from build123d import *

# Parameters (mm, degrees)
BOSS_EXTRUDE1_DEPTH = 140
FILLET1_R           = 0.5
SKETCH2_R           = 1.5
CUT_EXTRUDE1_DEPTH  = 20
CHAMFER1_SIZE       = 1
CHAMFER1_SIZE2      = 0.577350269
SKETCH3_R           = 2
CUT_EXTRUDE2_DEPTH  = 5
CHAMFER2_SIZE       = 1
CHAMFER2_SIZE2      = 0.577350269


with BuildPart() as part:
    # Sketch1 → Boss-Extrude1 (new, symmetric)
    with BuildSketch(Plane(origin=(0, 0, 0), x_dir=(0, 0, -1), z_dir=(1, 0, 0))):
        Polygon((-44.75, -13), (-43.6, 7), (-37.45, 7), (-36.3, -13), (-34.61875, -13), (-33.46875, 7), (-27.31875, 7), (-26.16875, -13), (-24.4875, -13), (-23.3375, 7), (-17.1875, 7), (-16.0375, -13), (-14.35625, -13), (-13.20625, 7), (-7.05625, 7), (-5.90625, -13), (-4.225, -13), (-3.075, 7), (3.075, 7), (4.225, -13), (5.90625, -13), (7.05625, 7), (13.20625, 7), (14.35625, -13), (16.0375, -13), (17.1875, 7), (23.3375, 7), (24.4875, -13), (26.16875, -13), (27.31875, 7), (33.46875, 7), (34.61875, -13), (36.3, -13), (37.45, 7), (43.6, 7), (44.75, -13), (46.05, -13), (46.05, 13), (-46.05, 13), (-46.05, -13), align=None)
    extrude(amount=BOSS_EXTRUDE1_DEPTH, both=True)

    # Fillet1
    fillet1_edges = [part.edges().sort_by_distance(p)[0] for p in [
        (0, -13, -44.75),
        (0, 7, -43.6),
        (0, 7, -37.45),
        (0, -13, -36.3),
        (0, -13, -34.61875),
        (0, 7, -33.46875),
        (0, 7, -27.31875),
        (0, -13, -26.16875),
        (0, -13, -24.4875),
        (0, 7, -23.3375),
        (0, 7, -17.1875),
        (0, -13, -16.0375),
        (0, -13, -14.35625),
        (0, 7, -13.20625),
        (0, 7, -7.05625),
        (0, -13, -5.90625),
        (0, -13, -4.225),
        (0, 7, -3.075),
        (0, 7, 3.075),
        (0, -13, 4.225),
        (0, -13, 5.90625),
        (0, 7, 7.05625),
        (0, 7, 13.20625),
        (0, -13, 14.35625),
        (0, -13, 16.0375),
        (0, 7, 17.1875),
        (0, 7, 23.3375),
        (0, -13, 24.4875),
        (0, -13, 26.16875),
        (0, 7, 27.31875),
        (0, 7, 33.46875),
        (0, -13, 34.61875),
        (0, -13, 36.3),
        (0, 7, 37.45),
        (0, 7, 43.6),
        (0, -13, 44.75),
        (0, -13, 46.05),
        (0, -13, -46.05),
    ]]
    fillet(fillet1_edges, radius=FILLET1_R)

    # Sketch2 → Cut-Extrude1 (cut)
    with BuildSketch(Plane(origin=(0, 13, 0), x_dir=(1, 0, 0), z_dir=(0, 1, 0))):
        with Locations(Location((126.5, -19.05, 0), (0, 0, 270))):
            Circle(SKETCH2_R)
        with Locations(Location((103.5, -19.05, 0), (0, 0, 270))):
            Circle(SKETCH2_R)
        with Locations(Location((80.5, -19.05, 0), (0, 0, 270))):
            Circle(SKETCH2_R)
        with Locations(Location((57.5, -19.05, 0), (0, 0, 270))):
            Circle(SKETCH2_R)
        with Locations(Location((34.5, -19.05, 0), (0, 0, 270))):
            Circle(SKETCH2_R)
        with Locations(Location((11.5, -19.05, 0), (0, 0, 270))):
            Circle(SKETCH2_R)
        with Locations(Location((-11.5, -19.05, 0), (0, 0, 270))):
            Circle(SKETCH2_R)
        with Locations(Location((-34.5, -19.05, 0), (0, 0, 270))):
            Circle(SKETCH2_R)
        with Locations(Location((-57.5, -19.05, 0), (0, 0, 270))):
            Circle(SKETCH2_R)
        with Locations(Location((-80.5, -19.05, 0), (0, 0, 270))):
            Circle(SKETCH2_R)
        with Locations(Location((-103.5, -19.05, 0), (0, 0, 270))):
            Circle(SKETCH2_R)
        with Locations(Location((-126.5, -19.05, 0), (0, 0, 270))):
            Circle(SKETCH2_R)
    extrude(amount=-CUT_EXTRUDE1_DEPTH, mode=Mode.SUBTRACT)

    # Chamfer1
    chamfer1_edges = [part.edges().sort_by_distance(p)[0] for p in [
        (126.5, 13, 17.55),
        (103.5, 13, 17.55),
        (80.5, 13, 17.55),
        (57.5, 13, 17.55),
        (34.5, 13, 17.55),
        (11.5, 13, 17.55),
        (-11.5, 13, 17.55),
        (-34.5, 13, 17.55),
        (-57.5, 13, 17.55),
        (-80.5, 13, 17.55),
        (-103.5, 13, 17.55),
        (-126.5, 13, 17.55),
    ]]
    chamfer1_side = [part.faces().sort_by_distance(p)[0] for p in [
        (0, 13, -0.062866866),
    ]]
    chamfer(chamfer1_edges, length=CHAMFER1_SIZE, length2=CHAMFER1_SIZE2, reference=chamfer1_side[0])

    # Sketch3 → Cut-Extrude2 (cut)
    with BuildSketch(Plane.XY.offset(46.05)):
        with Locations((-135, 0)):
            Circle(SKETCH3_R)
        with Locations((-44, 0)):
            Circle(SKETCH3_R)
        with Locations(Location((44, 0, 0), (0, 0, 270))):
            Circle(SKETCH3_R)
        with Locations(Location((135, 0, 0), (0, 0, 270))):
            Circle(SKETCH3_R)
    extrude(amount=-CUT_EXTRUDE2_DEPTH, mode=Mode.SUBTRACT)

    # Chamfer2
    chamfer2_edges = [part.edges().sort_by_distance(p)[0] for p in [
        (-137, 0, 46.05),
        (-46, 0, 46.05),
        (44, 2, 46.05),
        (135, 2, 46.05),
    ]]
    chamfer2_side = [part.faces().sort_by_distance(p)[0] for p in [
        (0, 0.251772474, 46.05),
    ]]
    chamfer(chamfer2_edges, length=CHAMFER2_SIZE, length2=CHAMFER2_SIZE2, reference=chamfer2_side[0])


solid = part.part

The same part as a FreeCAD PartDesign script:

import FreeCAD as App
import Part
import Sketcher


def edges_at(feature, points):
    """Names of the edges that pass closest to the given points."""
    edges = feature.Shape.Edges
    near = lambda p: min(range(len(edges)), key=lambda i: edges[i].distToShape(Part.Vertex(*p))[0])
    return sorted({f"Edge{near(p) + 1}" for p in points})


def add_polygon(sketch, points):
    """Adds a closed chain of lines whose ends are joined by coincident constraints."""
    first, n = sketch.GeometryCount, len(points)
    for a, b in zip(points, points[1:] + points[:1]):
        sketch.addGeometry(Part.LineSegment(App.Vector(*a, 0), App.Vector(*b, 0)), False)
    for i in range(n):
        sketch.addConstraint(Sketcher.Constraint("Coincident", first + i, 2, first + (i + 1) % n, 1))

doc = App.newDocument("Part")
body = doc.addObject("PartDesign::Body", "Body")

sketch1 = body.newObject("Sketcher::SketchObject", "Sketch")
sketch1.AttachmentSupport = (doc.getObject("YZ_Plane"), [""])
sketch1.MapMode = "FlatFace"
add_polygon(sketch1, [(-13, 44.75), (7, 43.6), (7, 37.45), (-13, 36.3), (-13, 34.61875), (7, 33.46875), (7, 27.31875), (-13, 26.16875), (-13, 24.4875), (7, 23.3375), (7, 17.1875), (-13, 16.0375), (-13, 14.35625), (7, 13.20625), (7, 7.05625), (-13, 5.90625), (-13, 4.225), (7, 3.075), (7, -3.075), (-13, -4.225), (-13, -5.90625), (7, -7.05625), (7, -13.20625), (-13, -14.35625), (-13, -16.0375), (7, -17.1875), (7, -23.3375), (-13, -24.4875), (-13, -26.16875), (7, -27.31875), (7, -33.46875), (-13, -34.61875), (-13, -36.3), (7, -37.45), (7, -43.6), (-13, -44.75), (-13, -46.05), (13, -46.05), (13, 46.05), (-13, 46.05)])
sketch1.addConstraint(Sketcher.Constraint("Vertical", 1))
sketch1.addConstraint(Sketcher.Constraint("Vertical", 3))
sketch1.addConstraint(Sketcher.Constraint("Vertical", 5))
sketch1.addConstraint(Sketcher.Constraint("Vertical", 7))
sketch1.addConstraint(Sketcher.Constraint("Vertical", 9))
sketch1.addConstraint(Sketcher.Constraint("Vertical", 11))
sketch1.addConstraint(Sketcher.Constraint("Vertical", 13))
sketch1.addConstraint(Sketcher.Constraint("Vertical", 15))
sketch1.addConstraint(Sketcher.Constraint("Vertical", 17))
sketch1.addConstraint(Sketcher.Constraint("Vertical", 19))
sketch1.addConstraint(Sketcher.Constraint("Vertical", 21))
sketch1.addConstraint(Sketcher.Constraint("Vertical", 23))
sketch1.addConstraint(Sketcher.Constraint("Vertical", 25))
sketch1.addConstraint(Sketcher.Constraint("Vertical", 27))
sketch1.addConstraint(Sketcher.Constraint("Vertical", 29))
sketch1.addConstraint(Sketcher.Constraint("Vertical", 31))
sketch1.addConstraint(Sketcher.Constraint("Vertical", 33))
sketch1.addConstraint(Sketcher.Constraint("Vertical", 35))
sketch1.addConstraint(Sketcher.Constraint("Horizontal", 36))
sketch1.addConstraint(Sketcher.Constraint("Vertical", 37))
sketch1.addConstraint(Sketcher.Constraint("Horizontal", 38))
sketch1.addConstraint(Sketcher.Constraint("Vertical", 39))
sketch1.addConstraint(Sketcher.Constraint("Symmetric", 35, 2, 37, 2, -1, 1))
sketch1.addConstraint(Sketcher.Constraint("Symmetric", 15, 2, 18, 2, -1))
sketch1.addConstraint(Sketcher.Constraint("Symmetric", 13, 2, 20, 2, -1))
sketch1.addConstraint(Sketcher.Constraint("Symmetric", 11, 2, 22, 2, -1))
sketch1.addConstraint(Sketcher.Constraint("Symmetric", 9, 2, 24, 2, -1))
sketch1.addConstraint(Sketcher.Constraint("Symmetric", 7, 2, 26, 2, -1))
sketch1.addConstraint(Sketcher.Constraint("Symmetric", 5, 2, 28, 2, -1))
sketch1.addConstraint(Sketcher.Constraint("Symmetric", 3, 2, 30, 2, -1))
sketch1.addConstraint(Sketcher.Constraint("Symmetric", 1, 2, 32, 2, -1))
sketch1.addConstraint(Sketcher.Constraint("Symmetric", 34, 2, 39, 2, -1))
sketch1.addConstraint(Sketcher.Constraint("Parallel", 0, 4))
sketch1.addConstraint(Sketcher.Constraint("Parallel", 2, 6))
sketch1.addConstraint(Sketcher.Constraint("Parallel", 4, 8))
sketch1.addConstraint(Sketcher.Constraint("Parallel", 6, 10))
sketch1.addConstraint(Sketcher.Constraint("Parallel", 8, 12))
sketch1.addConstraint(Sketcher.Constraint("Parallel", 10, 14))
sketch1.addConstraint(Sketcher.Constraint("Parallel", 12, 16))
sketch1.addConstraint(Sketcher.Constraint("Parallel", 14, 18))
sketch1.addConstraint(Sketcher.Constraint("Parallel", 16, 20))
sketch1.addConstraint(Sketcher.Constraint("Parallel", 18, 22))
sketch1.addConstraint(Sketcher.Constraint("Parallel", 20, 24))
sketch1.addConstraint(Sketcher.Constraint("Parallel", 22, 26))
sketch1.addConstraint(Sketcher.Constraint("Parallel", 24, 28))
sketch1.addConstraint(Sketcher.Constraint("Parallel", 26, 30))
sketch1.addConstraint(Sketcher.Constraint("Parallel", 28, 32))
sketch1.addConstraint(Sketcher.Constraint("Parallel", 30, 34))
sketch1.addConstraint(Sketcher.Constraint("Vertical", 1, 2, 4, 2))
sketch1.addConstraint(Sketcher.Constraint("Vertical", 3, 2, 6, 2))
sketch1.addConstraint(Sketcher.Constraint("Vertical", 5, 2, 8, 2))
sketch1.addConstraint(Sketcher.Constraint("Vertical", 7, 2, 10, 2))
sketch1.addConstraint(Sketcher.Constraint("Vertical", 9, 2, 12, 2))
sketch1.addConstraint(Sketcher.Constraint("Vertical", 11, 2, 14, 2))
sketch1.addConstraint(Sketcher.Constraint("Vertical", 13, 2, 16, 2))
sketch1.addConstraint(Sketcher.Constraint("Vertical", 31, 2, 34, 2))
sketch1.addConstraint(Sketcher.Constraint("Equal", 1, 5))
sketch1.addConstraint(Sketcher.Constraint("Equal", 3, 7))
sketch1.addConstraint(Sketcher.Constraint("Equal", 5, 9))
sketch1.addConstraint(Sketcher.Constraint("Equal", 7, 11))
sketch1.addConstraint(Sketcher.Constraint("Equal", 9, 13))
sketch1.addConstraint(Sketcher.Constraint("Equal", 11, 15))
sketch1.addConstraint(Sketcher.Constraint("Equal", 13, 17))
sketch1.addConstraint(Sketcher.Constraint("Equal", 15, 19))
sketch1.addConstraint(Sketcher.Constraint("DistanceX", 36, 1, 36, 2, 26.0))
sketch1.addConstraint(Sketcher.Constraint("DistanceY", 35, 2, 35, 1, 1.3))
sketch1.addConstraint(Sketcher.Constraint("DistanceY", 37, 1, 37, 2, 92.1))
sketch1.addConstraint(Sketcher.Constraint("DistanceX", -1, 1, 0, 2, 7.0))
sketch1.addConstraint(Sketcher.Constraint("DistanceY", 1, 2, 1, 1, 6.15))
sketch1.addConstraint(Sketcher.Constraint("DistanceY", -1, 1, 0, 2, 43.6))
pad1 = body.newObject("PartDesign::Pad", "Pad")
pad1.Profile = sketch1
pad1.Length = 280
pad1.Midplane = True
doc.recompute()

fillet = body.newObject("PartDesign::Fillet", "Fillet")
fillet.Base = (pad1, edges_at(pad1, [
    (0, -13, -44.75),
    (0, 7, -43.6),
    (0, 7, -37.45),
    (0, -13, -36.3),
    (0, -13, -34.619),
    (0, 7, -33.469),
    (0, 7, -27.319),
    (0, -13, -26.169),
    (0, -13, -24.488),
    (0, 7, -23.337),
    (0, 7, -17.188),
    (0, -13, -16.038),
    (0, -13, -14.356),
    (0, 7, -13.206),
    (0, 7, -7.056),
    (0, -13, -5.906),
    (0, -13, -4.225),
    (0, 7, -3.075),
    (0, 7, 3.075),
    (0, -13, 4.225),
    (0, -13, 5.906),
    (0, 7, 7.056),
    (0, 7, 13.206),
    (0, -13, 14.356),
    (0, -13, 16.038),
    (0, 7, 17.188),
    (0, 7, 23.337),
    (0, -13, 24.488),
    (0, -13, 26.169),
    (0, 7, 27.319),
    (0, 7, 33.469),
    (0, -13, 34.619),
    (0, -13, 36.3),
    (0, 7, 37.45),
    (0, 7, 43.6),
    (0, -13, 44.75),
    (0, -13, 46.05),
    (0, -13, -46.05),
]))
fillet.Radius = 0.5

sketch2 = body.newObject("Sketcher::SketchObject", "Sketch001")
sketch2.AttachmentSupport = (doc.getObject("XZ_Plane"), [""])
sketch2.MapMode = "FlatFace"
sketch2.AttachmentOffset = App.Placement(App.Vector(0, 0, -13), App.Rotation())
sketch2.addGeometry(Part.Circle(App.Vector(126.5, 19.05, 0), App.Vector(0, 0, 1), 1.5), False)
sketch2.addGeometry(Part.Circle(App.Vector(103.5, 19.05, 0), App.Vector(0, 0, 1), 1.5), False)
sketch2.addGeometry(Part.Circle(App.Vector(80.5, 19.05, 0), App.Vector(0, 0, 1), 1.5), False)
sketch2.addGeometry(Part.Circle(App.Vector(57.5, 19.05, 0), App.Vector(0, 0, 1), 1.5), False)
sketch2.addGeometry(Part.Circle(App.Vector(34.5, 19.05, 0), App.Vector(0, 0, 1), 1.5), False)
sketch2.addGeometry(Part.Circle(App.Vector(11.5, 19.05, 0), App.Vector(0, 0, 1), 1.5), False)
sketch2.addGeometry(Part.Circle(App.Vector(-11.5, 19.05, 0), App.Vector(0, 0, 1), 1.5), False)
sketch2.addGeometry(Part.Circle(App.Vector(-34.5, 19.05, 0), App.Vector(0, 0, 1), 1.5), False)
sketch2.addGeometry(Part.Circle(App.Vector(-57.5, 19.05, 0), App.Vector(0, 0, 1), 1.5), False)
sketch2.addGeometry(Part.Circle(App.Vector(-80.5, 19.05, 0), App.Vector(0, 0, 1), 1.5), False)
sketch2.addGeometry(Part.Circle(App.Vector(-103.5, 19.05, 0), App.Vector(0, 0, 1), 1.5), False)
sketch2.addGeometry(Part.Circle(App.Vector(-126.5, 19.05, 0), App.Vector(0, 0, 1), 1.5), False)
sketch2.addConstraint(Sketcher.Constraint("Equal", 0, 1))
sketch2.addConstraint(Sketcher.Constraint("Equal", 1, 2))
sketch2.addConstraint(Sketcher.Constraint("Equal", 2, 3))
sketch2.addConstraint(Sketcher.Constraint("Equal", 3, 4))
sketch2.addConstraint(Sketcher.Constraint("Equal", 4, 5))
sketch2.addConstraint(Sketcher.Constraint("Equal", 5, 6))
sketch2.addConstraint(Sketcher.Constraint("Equal", 6, 7))
sketch2.addConstraint(Sketcher.Constraint("Equal", 7, 8))
sketch2.addConstraint(Sketcher.Constraint("Equal", 8, 9))
sketch2.addConstraint(Sketcher.Constraint("Equal", 9, 10))
sketch2.addConstraint(Sketcher.Constraint("Equal", 10, 11))
sketch2.addConstraint(Sketcher.Constraint("Symmetric", 5, 3, 6, 3, -2))
sketch2.addConstraint(Sketcher.Constraint("Symmetric", 4, 3, 7, 3, -2))
sketch2.addConstraint(Sketcher.Constraint("Symmetric", 3, 3, 8, 3, -2))
sketch2.addConstraint(Sketcher.Constraint("Symmetric", 2, 3, 9, 3, -2))
sketch2.addConstraint(Sketcher.Constraint("Symmetric", 1, 3, 10, 3, -2))
sketch2.addConstraint(Sketcher.Constraint("Symmetric", 0, 3, 11, 3, -2))
sketch2.addConstraint(Sketcher.Constraint("Horizontal", 0, 3, 1, 3))
sketch2.addConstraint(Sketcher.Constraint("Horizontal", 1, 3, 2, 3))
sketch2.addConstraint(Sketcher.Constraint("Horizontal", 2, 3, 3, 3))
sketch2.addConstraint(Sketcher.Constraint("Horizontal", 3, 3, 4, 3))
sketch2.addConstraint(Sketcher.Constraint("Horizontal", 4, 3, 5, 3))
sketch2.addConstraint(Sketcher.Constraint("Diameter", 0, 3.0))
sketch2.addConstraint(Sketcher.Constraint("DistanceX", 1, 3, 0, 3, 23.0))
sketch2.addConstraint(Sketcher.Constraint("DistanceX", 2, 3, 1, 3, 23.0))
sketch2.addConstraint(Sketcher.Constraint("DistanceX", 3, 3, 2, 3, 23.0))
sketch2.addConstraint(Sketcher.Constraint("DistanceX", 4, 3, 3, 3, 23.0))
sketch2.addConstraint(Sketcher.Constraint("DistanceX", 5, 3, 4, 3, 23.0))
sketch2.addConstraint(Sketcher.Constraint("DistanceX", 6, 3, 5, 3, 23.0))
sketch2.addConstraint(Sketcher.Constraint("DistanceY", -1, 1, 0, 3, 19.05))
pocket1 = body.newObject("PartDesign::Pocket", "Pocket")
pocket1.Profile = sketch2
pocket1.Length = 20
pocket1.Reversed = True
doc.recompute()

chamfer = body.newObject("PartDesign::Chamfer", "Chamfer")
chamfer.Base = (pocket1, edges_at(pocket1, [
    (126.5, 13, 17.55),
    (103.5, 13, 17.55),
    (80.5, 13, 17.55),
    (57.5, 13, 17.55),
    (34.5, 13, 17.55),
    (11.5, 13, 17.55),
    (-11.5, 13, 17.55),
    (-34.5, 13, 17.55),
    (-57.5, 13, 17.55),
    (-80.5, 13, 17.55),
    (-103.5, 13, 17.55),
    (-126.5, 13, 17.55),
]))
chamfer.ChamferType = "Two distances"
chamfer.Size = 1
chamfer.Size2 = 0.57735

sketch3 = body.newObject("Sketcher::SketchObject", "Sketch002")
sketch3.AttachmentSupport = (doc.getObject("XY_Plane"), [""])
sketch3.MapMode = "FlatFace"
sketch3.AttachmentOffset = App.Placement(App.Vector(0, 0, 46.05), App.Rotation())
sketch3.addGeometry(Part.Circle(App.Vector(-135, 0, 0), App.Vector(0, 0, 1), 2), False)
sketch3.addGeometry(Part.Circle(App.Vector(-44, 0, 0), App.Vector(0, 0, 1), 2), False)
sketch3.addGeometry(Part.Circle(App.Vector(44, 0, 0), App.Vector(0, 0, 1), 2), False)
sketch3.addGeometry(Part.Circle(App.Vector(135, 0, 0), App.Vector(0, 0, 1), 2), False)
sketch3.addConstraint(Sketcher.Constraint("Equal", 0, 1))
sketch3.addConstraint(Sketcher.Constraint("Equal", 1, 2))
sketch3.addConstraint(Sketcher.Constraint("Equal", 2, 3))
sketch3.addConstraint(Sketcher.Constraint("Symmetric", 1, 3, 2, 3, -1, 1))
sketch3.addConstraint(Sketcher.Constraint("Symmetric", 0, 3, 3, 3, -1, 1))
sketch3.addConstraint(Sketcher.Constraint("PointOnObject", 0, 3, -1))
sketch3.addConstraint(Sketcher.Constraint("PointOnObject", 1, 3, -1))
sketch3.addConstraint(Sketcher.Constraint("Diameter", 0, 4.0))
sketch3.addConstraint(Sketcher.Constraint("DistanceX", 0, 3, -1, 1, 135.0))
sketch3.addConstraint(Sketcher.Constraint("DistanceX", 1, 3, -1, 1, 44.0))
pocket2 = body.newObject("PartDesign::Pocket", "Pocket001")
pocket2.Profile = sketch3
pocket2.Length = 5
doc.recompute()

chamfer2 = body.newObject("PartDesign::Chamfer", "Chamfer001")
chamfer2.Base = (pocket2, edges_at(pocket2, [
    (-137, 0, 46.05),
    (-46, 0, 46.05),
    (44, 2, 46.05),
    (135, 2, 46.05),
]))
chamfer2.ChamferType = "Two distances"
chamfer2.Size = 1
chamfer2.Size2 = 0.57735

doc.recompute()
